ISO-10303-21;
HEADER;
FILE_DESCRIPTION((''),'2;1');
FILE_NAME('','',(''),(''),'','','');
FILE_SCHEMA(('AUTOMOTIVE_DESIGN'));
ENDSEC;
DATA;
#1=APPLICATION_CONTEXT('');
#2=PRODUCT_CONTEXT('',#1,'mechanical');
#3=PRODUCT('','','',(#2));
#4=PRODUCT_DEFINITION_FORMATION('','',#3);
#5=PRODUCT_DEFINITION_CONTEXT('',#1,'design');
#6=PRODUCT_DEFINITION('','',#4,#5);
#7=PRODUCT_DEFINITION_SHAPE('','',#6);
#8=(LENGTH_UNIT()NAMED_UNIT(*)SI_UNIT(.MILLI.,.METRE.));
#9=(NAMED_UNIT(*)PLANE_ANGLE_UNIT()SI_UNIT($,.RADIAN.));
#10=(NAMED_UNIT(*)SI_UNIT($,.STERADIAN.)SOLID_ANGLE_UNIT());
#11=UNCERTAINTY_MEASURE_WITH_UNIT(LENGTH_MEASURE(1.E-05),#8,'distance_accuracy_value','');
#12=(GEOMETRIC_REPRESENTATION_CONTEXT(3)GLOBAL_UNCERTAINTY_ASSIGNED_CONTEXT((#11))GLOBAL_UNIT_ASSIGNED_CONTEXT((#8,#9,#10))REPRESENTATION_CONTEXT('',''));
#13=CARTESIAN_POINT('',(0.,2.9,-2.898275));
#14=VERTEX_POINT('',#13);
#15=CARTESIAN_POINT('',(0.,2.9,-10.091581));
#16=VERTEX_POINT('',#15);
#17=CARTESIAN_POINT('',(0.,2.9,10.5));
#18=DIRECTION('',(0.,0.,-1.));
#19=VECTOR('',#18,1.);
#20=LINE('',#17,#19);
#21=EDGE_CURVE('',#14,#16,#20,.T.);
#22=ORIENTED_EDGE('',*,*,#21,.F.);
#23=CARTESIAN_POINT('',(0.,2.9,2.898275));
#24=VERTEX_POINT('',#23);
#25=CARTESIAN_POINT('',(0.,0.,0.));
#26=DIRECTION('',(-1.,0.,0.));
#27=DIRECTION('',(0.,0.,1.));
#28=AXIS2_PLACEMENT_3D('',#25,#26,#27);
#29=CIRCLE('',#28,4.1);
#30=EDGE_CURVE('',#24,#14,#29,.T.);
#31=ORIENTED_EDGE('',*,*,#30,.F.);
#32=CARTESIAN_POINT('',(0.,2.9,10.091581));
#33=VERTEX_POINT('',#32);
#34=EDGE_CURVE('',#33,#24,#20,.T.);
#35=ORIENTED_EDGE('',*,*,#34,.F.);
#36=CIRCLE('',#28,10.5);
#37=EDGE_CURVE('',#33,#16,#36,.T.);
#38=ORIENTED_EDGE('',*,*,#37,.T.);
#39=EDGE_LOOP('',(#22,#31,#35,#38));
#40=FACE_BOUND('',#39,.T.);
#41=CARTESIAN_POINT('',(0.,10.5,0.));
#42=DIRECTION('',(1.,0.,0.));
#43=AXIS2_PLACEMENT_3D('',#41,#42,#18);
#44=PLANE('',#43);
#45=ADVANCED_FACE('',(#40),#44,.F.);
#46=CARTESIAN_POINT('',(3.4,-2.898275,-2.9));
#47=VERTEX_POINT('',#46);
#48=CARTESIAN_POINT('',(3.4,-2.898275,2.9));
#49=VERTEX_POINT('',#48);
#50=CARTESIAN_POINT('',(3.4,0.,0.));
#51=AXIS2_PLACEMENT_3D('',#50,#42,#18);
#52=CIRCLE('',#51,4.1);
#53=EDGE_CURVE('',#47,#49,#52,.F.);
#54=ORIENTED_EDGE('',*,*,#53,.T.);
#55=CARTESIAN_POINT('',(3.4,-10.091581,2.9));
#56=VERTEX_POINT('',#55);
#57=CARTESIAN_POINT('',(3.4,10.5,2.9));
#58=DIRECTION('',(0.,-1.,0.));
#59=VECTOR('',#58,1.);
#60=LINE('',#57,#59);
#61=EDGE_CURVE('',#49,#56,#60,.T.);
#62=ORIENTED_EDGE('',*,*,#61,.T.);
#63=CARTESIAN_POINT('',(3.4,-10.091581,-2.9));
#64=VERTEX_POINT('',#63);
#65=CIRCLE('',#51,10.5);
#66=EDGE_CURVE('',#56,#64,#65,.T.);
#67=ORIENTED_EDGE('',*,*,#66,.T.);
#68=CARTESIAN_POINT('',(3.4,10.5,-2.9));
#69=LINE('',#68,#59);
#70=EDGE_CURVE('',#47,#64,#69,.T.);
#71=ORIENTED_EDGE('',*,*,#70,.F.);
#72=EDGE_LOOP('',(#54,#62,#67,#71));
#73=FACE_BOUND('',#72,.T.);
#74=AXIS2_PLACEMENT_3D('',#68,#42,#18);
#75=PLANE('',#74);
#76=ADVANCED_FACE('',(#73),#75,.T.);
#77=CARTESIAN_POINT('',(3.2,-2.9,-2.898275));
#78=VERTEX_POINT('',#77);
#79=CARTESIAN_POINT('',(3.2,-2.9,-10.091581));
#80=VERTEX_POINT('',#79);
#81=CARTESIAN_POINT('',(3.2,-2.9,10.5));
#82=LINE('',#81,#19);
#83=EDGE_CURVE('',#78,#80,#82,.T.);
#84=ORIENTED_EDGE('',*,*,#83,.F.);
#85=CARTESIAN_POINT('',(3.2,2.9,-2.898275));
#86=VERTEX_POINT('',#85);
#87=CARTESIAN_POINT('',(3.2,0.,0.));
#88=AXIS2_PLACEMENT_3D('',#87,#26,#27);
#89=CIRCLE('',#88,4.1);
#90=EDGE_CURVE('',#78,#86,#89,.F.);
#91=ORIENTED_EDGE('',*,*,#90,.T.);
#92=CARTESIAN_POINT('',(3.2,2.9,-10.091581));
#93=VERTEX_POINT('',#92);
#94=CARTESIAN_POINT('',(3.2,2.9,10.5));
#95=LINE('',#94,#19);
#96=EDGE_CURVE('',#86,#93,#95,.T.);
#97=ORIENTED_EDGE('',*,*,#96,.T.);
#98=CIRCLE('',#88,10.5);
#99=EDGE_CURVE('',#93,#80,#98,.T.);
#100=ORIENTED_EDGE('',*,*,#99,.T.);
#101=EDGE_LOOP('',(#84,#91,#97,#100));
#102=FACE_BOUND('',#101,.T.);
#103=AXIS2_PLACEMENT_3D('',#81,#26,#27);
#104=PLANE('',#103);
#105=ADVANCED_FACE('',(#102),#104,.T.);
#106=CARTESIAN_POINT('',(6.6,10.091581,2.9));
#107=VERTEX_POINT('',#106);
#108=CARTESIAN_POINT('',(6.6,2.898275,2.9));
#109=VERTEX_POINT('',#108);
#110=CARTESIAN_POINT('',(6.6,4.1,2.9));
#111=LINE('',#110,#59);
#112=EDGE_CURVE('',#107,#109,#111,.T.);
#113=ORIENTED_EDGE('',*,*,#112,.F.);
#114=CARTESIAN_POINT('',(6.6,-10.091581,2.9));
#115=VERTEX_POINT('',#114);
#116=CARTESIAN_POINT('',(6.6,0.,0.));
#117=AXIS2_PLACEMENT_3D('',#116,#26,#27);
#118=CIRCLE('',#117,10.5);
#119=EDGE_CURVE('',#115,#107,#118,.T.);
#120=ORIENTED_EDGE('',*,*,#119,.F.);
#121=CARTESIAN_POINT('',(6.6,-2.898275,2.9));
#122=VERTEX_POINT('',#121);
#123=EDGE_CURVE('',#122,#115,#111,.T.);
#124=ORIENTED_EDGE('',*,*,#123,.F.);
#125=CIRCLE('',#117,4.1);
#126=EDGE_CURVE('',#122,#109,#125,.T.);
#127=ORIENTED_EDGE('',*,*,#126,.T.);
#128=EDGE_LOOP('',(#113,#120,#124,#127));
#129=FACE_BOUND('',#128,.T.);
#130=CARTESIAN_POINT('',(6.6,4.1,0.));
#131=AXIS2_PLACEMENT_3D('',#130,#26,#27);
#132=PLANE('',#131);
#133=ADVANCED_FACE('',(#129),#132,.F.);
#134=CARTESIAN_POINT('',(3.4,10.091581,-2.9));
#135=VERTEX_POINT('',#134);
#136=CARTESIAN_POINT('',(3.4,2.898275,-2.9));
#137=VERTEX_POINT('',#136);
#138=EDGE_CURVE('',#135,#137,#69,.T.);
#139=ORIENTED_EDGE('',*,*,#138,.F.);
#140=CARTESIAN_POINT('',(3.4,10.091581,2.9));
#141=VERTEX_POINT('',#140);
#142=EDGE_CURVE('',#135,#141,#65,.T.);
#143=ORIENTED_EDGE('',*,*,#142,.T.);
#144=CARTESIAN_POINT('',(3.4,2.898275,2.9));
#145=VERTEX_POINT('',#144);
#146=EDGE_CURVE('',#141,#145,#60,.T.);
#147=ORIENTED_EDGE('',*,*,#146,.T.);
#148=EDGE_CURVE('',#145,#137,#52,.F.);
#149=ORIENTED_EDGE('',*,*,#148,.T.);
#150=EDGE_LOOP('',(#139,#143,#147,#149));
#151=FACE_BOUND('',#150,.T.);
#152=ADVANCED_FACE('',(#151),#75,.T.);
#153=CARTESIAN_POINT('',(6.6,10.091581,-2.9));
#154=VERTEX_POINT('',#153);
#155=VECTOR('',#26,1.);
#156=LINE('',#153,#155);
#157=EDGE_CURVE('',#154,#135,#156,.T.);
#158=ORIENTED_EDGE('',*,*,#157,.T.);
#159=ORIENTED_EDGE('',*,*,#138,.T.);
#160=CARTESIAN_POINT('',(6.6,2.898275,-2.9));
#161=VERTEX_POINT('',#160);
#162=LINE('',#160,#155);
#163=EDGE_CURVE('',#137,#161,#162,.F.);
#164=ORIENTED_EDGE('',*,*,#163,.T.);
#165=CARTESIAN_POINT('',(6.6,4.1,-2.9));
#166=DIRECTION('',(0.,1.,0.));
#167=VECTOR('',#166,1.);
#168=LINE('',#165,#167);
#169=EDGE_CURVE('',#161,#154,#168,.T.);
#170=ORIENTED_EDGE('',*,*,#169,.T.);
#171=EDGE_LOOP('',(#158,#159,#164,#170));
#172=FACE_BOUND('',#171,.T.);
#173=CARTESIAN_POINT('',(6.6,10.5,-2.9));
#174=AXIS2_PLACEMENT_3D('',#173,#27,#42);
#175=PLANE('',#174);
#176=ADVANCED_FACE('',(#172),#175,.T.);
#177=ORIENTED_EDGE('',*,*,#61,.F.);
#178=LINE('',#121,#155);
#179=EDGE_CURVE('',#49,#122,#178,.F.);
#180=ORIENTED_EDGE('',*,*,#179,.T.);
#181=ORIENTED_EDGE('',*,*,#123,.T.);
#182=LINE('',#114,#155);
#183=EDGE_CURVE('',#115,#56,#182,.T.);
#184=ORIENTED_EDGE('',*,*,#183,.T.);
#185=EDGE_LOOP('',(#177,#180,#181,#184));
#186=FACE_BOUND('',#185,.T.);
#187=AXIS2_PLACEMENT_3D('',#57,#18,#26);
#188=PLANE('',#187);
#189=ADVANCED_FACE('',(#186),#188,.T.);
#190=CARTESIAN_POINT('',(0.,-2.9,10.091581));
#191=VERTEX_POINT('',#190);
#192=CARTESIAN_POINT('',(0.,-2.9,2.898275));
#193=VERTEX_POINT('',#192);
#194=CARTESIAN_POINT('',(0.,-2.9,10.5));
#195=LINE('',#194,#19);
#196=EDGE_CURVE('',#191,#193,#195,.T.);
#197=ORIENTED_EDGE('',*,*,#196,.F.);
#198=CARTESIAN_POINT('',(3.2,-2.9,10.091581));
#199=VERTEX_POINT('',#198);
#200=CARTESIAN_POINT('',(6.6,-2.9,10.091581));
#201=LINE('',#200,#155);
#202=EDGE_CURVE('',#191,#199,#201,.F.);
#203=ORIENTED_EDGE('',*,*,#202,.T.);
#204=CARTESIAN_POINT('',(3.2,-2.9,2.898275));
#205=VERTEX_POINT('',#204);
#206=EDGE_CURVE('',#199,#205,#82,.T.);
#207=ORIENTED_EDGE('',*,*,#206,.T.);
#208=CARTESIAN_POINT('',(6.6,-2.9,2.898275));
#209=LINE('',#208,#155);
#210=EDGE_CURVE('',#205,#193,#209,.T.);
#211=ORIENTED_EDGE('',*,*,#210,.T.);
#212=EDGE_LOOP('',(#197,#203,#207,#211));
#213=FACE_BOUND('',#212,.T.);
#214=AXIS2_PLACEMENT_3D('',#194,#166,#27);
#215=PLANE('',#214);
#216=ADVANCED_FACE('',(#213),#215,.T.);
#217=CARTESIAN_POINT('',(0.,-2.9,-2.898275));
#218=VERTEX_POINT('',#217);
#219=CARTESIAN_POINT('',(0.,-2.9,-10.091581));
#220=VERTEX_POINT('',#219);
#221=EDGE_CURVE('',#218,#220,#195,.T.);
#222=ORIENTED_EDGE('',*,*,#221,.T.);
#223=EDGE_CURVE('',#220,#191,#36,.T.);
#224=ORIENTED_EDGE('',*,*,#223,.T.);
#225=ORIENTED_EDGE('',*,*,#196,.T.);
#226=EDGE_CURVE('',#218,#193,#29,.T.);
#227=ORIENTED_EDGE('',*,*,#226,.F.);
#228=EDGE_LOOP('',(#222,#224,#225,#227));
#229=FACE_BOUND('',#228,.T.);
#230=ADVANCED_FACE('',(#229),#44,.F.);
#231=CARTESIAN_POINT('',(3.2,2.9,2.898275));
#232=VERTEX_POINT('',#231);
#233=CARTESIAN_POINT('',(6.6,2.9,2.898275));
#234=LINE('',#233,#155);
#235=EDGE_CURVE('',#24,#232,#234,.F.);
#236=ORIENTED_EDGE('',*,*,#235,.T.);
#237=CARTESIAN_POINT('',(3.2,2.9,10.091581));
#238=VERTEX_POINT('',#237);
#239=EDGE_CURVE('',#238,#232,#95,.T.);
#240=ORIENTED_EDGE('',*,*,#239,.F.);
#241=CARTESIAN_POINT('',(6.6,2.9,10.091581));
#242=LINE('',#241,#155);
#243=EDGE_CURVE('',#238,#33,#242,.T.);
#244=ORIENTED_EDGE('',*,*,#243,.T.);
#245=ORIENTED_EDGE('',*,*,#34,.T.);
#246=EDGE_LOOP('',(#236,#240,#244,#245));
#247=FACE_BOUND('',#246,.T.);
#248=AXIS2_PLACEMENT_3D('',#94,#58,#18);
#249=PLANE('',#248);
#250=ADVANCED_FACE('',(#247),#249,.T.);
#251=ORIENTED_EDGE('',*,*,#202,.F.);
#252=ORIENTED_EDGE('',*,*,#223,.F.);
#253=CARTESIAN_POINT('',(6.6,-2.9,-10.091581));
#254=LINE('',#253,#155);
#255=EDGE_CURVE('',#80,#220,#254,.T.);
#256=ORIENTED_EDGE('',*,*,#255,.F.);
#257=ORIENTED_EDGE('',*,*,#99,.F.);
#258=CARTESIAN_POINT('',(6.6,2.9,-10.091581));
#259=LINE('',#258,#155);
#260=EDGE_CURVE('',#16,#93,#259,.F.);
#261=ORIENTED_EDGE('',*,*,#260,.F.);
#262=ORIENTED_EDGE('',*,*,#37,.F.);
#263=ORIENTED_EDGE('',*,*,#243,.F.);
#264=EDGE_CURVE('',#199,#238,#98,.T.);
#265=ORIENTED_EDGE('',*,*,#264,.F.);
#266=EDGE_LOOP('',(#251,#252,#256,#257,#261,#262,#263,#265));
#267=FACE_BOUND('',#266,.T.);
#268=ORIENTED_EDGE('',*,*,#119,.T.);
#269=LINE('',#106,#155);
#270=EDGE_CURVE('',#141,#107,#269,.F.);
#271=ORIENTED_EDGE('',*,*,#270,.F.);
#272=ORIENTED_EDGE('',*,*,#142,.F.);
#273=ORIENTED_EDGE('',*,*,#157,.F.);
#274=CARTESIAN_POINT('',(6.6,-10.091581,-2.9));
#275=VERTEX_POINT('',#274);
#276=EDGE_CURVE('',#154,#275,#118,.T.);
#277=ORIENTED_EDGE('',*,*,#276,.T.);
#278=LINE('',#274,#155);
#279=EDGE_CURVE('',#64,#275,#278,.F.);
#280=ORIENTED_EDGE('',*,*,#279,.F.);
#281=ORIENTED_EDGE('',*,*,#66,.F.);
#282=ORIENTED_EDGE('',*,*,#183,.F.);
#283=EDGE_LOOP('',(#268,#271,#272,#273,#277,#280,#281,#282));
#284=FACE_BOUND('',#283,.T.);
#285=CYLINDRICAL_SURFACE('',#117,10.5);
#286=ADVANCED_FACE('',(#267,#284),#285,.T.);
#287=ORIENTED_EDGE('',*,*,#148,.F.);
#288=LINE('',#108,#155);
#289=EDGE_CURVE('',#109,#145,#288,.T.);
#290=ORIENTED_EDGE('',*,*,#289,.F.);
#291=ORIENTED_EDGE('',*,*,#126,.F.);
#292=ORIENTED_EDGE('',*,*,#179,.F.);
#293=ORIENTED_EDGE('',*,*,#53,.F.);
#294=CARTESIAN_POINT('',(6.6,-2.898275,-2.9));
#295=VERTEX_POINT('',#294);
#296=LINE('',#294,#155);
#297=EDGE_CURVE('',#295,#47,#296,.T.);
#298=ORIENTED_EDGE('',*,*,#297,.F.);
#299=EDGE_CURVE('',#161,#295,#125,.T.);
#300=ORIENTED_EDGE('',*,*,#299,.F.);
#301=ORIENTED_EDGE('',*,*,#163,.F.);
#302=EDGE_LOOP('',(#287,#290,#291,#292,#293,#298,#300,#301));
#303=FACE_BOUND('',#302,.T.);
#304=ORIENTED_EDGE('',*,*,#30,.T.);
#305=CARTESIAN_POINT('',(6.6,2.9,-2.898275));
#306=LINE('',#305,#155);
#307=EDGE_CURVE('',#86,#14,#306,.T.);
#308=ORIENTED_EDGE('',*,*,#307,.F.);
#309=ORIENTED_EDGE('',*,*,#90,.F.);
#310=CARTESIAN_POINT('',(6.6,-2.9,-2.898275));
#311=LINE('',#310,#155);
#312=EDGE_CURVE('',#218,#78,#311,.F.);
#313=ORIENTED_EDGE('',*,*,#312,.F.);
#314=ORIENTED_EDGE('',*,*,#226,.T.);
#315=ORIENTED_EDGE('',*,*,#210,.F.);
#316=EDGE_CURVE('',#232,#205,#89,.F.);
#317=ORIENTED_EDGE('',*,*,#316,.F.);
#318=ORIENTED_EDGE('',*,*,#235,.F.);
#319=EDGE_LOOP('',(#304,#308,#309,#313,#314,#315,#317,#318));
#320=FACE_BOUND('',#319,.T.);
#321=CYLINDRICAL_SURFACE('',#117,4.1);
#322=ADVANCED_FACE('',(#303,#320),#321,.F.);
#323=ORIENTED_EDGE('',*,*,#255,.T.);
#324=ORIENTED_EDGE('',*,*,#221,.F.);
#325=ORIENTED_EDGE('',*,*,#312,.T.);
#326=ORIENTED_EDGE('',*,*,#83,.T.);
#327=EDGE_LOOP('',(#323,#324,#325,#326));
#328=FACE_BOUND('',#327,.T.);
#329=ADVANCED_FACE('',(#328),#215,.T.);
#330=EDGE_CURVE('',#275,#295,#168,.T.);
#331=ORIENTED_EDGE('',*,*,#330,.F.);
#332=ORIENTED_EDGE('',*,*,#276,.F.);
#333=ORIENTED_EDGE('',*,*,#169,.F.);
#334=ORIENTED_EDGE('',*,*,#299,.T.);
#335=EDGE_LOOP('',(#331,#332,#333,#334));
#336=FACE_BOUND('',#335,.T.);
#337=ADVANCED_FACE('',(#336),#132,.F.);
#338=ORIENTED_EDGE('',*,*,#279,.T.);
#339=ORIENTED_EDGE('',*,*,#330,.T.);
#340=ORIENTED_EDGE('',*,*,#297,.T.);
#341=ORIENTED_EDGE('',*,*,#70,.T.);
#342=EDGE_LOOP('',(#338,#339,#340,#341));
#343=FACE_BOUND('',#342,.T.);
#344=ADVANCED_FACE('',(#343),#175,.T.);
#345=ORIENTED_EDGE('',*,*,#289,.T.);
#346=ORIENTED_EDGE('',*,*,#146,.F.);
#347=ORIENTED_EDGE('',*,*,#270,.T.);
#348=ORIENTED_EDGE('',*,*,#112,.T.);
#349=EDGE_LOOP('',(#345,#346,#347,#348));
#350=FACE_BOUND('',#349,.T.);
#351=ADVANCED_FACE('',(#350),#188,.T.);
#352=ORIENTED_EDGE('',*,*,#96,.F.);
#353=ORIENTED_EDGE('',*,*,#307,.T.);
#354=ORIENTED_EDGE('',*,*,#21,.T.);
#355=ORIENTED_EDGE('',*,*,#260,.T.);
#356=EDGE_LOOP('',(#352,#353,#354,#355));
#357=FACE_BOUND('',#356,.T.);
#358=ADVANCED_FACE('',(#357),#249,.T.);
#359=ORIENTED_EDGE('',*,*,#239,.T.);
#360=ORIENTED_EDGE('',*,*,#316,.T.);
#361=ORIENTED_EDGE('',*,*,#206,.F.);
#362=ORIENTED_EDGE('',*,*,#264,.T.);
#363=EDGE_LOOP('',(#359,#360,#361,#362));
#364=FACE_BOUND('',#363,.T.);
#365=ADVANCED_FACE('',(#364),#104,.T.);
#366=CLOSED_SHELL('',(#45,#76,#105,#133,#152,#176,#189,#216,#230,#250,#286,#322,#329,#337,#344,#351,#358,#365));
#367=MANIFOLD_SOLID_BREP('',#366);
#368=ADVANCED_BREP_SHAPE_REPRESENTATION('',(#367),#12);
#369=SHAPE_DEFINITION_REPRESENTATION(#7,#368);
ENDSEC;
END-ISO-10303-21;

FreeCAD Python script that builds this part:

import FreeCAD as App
import Part
import Sketcher


def add_polygon(sketch, points):
    """Adds a closed chain of lines whose ends are joined by coincident constraints."""
    first, n = sketch.GeometryCount, len(points)
    for a, b in zip(points, points[1:] + points[:1]):
        sketch.addGeometry(Part.LineSegment(App.Vector(*a, 0), App.Vector(*b, 0)), False)
    for i in range(n):
        sketch.addConstraint(Sketcher.Constraint("Coincident", first + i, 2, first + (i + 1) % n, 1))

doc = App.newDocument("Part")
body = doc.addObject("PartDesign::Body", "Body")

sketch1 = doc.addObject("Sketcher::SketchObject", "Sketch")
body.addObject(sketch1)
sketch1.AttachmentSupport = (doc.XY_Plane, [""])
sketch1.MapMode = "FlatFace"
add_polygon(sketch1, [(0, 10), (0, 4), (7, 4), (7, 10)])
sketch1.addConstraint(Sketcher.Constraint("Vertical", 0))
sketch1.addConstraint(Sketcher.Constraint("Horizontal", 1))
sketch1.addConstraint(Sketcher.Constraint("Vertical", 2))
sketch1.addConstraint(Sketcher.Constraint("Horizontal", 3))
sketch1.addConstraint(Sketcher.Constraint("PointOnObject", 0, 2, -2))
sketch1.addConstraint(Sketcher.Constraint("DistanceX", 1, 1, 1, 2, 6.6))
sketch1.addConstraint(Sketcher.Constraint("DistanceY", 0, 2, 0, 1, 6.4))
sketch1.addConstraint(Sketcher.Constraint("DistanceY", -1, 1, 0, 2, 4.1))
revolution = doc.addObject("PartDesign::Revolution", "Revolution")
body.addObject(revolution)
revolution.Profile = sketch1
revolution.ReferenceAxis = (sketch1, ["H_Axis"])
revolution.Angle = 360

sketch2 = doc.addObject("Sketcher::SketchObject", "Sketch001")
body.addObject(sketch2)
sketch2.AttachmentSupport = (doc.XY_Plane, [""])
sketch2.MapMode = "FlatFace"
add_polygon(sketch2, [(0, 2.9), (0, -2.9), (3.2, -2.9), (3.2, 2.9)])
sketch2.addConstraint(Sketcher.Constraint("Vertical", 0))
sketch2.addConstraint(Sketcher.Constraint("Horizontal", 1))
sketch2.addConstraint(Sketcher.Constraint("Vertical", 2))
sketch2.addConstraint(Sketcher.Constraint("Horizontal", 3))
sketch2.addConstraint(Sketcher.Constraint("Symmetric", 0, 2, 3, 2, -1, 1))
sketch2.addConstraint(Sketcher.Constraint("DistanceX", 1, 1, 1, 2, 3.2))
sketch2.addConstraint(Sketcher.Constraint("DistanceY", 0, 2, 0, 1, 5.8))
pocket1 = doc.addObject("PartDesign::Pocket", "Pocket")
body.addObject(pocket1)
pocket1.Profile = sketch2
pocket1.Type = "ThroughAll"
pocket1.Midplane = True

sketch3 = doc.addObject("Sketcher::SketchObject", "Sketch002")
body.addObject(sketch3)
sketch3.AttachmentSupport = (doc.XZ_Plane, [""])
sketch3.MapMode = "FlatFace"
add_polygon(sketch3, [(6.6, 2.9), (6.6, -2.9), (3.4, -2.9), (3.4, 2.9)])
sketch3.addConstraint(Sketcher.Constraint("Vertical", 0))
sketch3.addConstraint(Sketcher.Constraint("Horizontal", 1))
sketch3.addConstraint(Sketcher.Constraint("Vertical", 2))
sketch3.addConstraint(Sketcher.Constraint("Horizontal", 3))
sketch3.addConstraint(Sketcher.Constraint("DistanceX", 1, 2, 1, 1, 3.2))
sketch3.addConstraint(Sketcher.Constraint("DistanceY", 0, 2, 0, 1, 5.8))
sketch3.addConstraint(Sketcher.Constraint("DistanceX", -1, 1, 0, 2, 6.6))
sketch3.addConstraint(Sketcher.Constraint("DistanceY", 0, 2, -1, 1, 2.9))
pocket2 = doc.addObject("PartDesign::Pocket", "Pocket001")
body.addObject(pocket2)
pocket2.Profile = sketch3
pocket2.Type = "ThroughAll"
pocket2.Midplane = True

doc.recompute()
